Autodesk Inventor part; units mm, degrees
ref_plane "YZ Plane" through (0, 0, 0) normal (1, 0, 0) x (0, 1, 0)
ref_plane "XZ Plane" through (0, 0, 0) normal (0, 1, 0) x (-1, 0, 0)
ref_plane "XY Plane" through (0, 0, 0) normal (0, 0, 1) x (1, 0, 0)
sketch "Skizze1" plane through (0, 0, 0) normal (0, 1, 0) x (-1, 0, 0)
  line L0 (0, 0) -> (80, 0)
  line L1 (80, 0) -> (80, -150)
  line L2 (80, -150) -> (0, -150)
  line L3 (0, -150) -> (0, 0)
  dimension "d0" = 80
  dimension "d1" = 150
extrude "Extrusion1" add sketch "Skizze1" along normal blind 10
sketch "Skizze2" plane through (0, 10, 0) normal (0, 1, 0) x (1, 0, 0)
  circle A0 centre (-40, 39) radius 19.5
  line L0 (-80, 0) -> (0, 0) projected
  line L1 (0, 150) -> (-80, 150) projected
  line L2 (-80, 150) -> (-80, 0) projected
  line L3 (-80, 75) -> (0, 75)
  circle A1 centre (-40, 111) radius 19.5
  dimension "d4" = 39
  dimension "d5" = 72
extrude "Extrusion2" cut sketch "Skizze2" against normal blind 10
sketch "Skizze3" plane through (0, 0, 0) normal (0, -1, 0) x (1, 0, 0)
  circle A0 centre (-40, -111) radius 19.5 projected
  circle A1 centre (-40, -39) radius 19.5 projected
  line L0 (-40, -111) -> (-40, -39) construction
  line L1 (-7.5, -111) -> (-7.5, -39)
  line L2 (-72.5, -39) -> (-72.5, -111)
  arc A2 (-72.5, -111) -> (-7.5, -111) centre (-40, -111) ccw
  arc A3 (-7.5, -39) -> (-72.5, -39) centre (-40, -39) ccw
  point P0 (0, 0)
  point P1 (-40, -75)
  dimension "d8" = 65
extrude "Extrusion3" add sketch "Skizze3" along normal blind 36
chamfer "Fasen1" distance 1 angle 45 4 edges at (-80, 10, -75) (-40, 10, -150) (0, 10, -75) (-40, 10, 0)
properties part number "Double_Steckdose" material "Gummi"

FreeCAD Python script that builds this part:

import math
import FreeCAD as App
import Part
import Sketcher


def edges_at(feature, points):
    """Names of the edges that pass closest to the given points."""
    edges = feature.Shape.Edges
    near = lambda p: min(range(len(edges)), key=lambda i: edges[i].distToShape(Part.Vertex(*p))[0])
    return sorted({f"Edge{near(p) + 1}" for p in points})


def add_polygon(sketch, points):
    """Adds a closed chain of lines whose ends are joined by coincident constraints."""
    first, n = sketch.GeometryCount, len(points)
    for a, b in zip(points, points[1:] + points[:1]):
        sketch.addGeometry(Part.LineSegment(App.Vector(*a, 0), App.Vector(*b, 0)), False)
    for i in range(n):
        sketch.addConstraint(Sketcher.Constraint("Coincident", first + i, 2, first + (i + 1) % n, 1))

doc = App.newDocument("Part")
body = doc.addObject("PartDesign::Body", "Body")

# Sketch on XZ plane
sketch1 = body.newObject("Sketcher::SketchObject", "Sketch")
sketch1.AttachmentSupport = (doc.getObject("XZ_Plane"), [""])
sketch1.MapMode = "FlatFace"
add_polygon(sketch1, [(-80, 0), (0, 0), (0, -150), (-80, -150)])  # lines 0-3
sketch1.addConstraint([
    Sketcher.Constraint("Horizontal", 0),
    Sketcher.Constraint("Vertical", 1),
    Sketcher.Constraint("Horizontal", 2),
    Sketcher.Constraint("Vertical", 3),
    Sketcher.Constraint("Coincident", 0, 2, -1, 1),
    Sketcher.Constraint("DistanceX", 0, 1, 0, 2, 80.0),
    Sketcher.Constraint("DistanceY", 1, 2, 1, 1, 150.0),
])
pad1 = body.newObject("PartDesign::Pad", "Pad")
pad1.Profile = sketch1
pad1.Length = 10
pad1.Reversed = True

# Sketch on XZ plane
sketch2 = body.newObject("Sketcher::SketchObject", "Sketch001")
sketch2.AttachmentSupport = (doc.getObject("XZ_Plane"), [""])
sketch2.MapMode = "FlatFace"
sketch2.AttachmentOffset = App.Placement(App.Vector(0, 0, -10), App.Rotation())
sketch2.addGeometry([
    Part.Circle(App.Vector(-40, -39, 0), App.Vector(0, 0, 1), 19.5),
    Part.Circle(App.Vector(-40, -111, 0), App.Vector(0, 0, 1), 19.5),
], False)
sketch2.addConstraint([
    Sketcher.Constraint("Equal", 0, 1),
    Sketcher.Constraint("Vertical", 0, 3, 1, 3),
    Sketcher.Constraint("Diameter", 0, 39.0),
    Sketcher.Constraint("DistanceY", 0, 3, -1, 1, 39.0),
    Sketcher.Constraint("DistanceY", 1, 3, 0, 3, 72.0),
    Sketcher.Constraint("DistanceX", 0, 3, -1, 1, 40.0),
])
pocket1 = body.newObject("PartDesign::Pocket", "Pocket")
pocket1.Profile = sketch2
pocket1.Length = 10
pocket1.Reversed = True

# Sketch on XZ plane
sketch3 = body.newObject("Sketcher::SketchObject", "Sketch002")
sketch3.AttachmentSupport = (doc.getObject("XZ_Plane"), [""])
sketch3.MapMode = "FlatFace"
sketch3.addGeometry([
    Part.ArcOfCircle(Part.Circle(App.Vector(-40, -111, 0), App.Vector(0, 0, 1), 32.5), math.radians(180), math.radians(360)),  # 0
    Part.LineSegment(App.Vector(-7.5, -111, 0), App.Vector(-7.5, -39, 0)),  # 1
    Part.ArcOfCircle(Part.Circle(App.Vector(-40, -39, 0), App.Vector(0, 0, 1), 32.5), math.radians(0), math.radians(180)),  # 2
    Part.LineSegment(App.Vector(-72.5, -39, 0), App.Vector(-72.5, -111, 0)),  # 3
    Part.Circle(App.Vector(-40, -111, 0), App.Vector(0, 0, 1), 19.5),  # 4
    Part.Circle(App.Vector(-40, -39, 0), App.Vector(0, 0, 1), 19.5),  # 5
], False)
sketch3.addConstraint([
    Sketcher.Constraint("Tangent", 0, 2, 1, 1),
    Sketcher.Constraint("Tangent", 1, 2, 2, 1),
    Sketcher.Constraint("Tangent", 2, 2, 3, 1),
    Sketcher.Constraint("Tangent", 3, 2, 0, 1),
    Sketcher.Constraint("Vertical", 1),
    Sketcher.Constraint("Vertical", 3),
    Sketcher.Constraint("Coincident", 4, 3, 0, 3),
    Sketcher.Constraint("Coincident", 5, 3, 2, 3),
    Sketcher.Constraint("Equal", 4, 5),
    Sketcher.Constraint("Radius", 0, 32.5),
    Sketcher.Constraint("Diameter", 4, 39.0),
    Sketcher.Constraint("DistanceY", 1, 1, 1, 2, 72.0),
    Sketcher.Constraint("DistanceX", 0, 3, -1, 1, 40.0),
    Sketcher.Constraint("DistanceY", 0, 3, -1, 1, 111.0),
])
pad2 = body.newObject("PartDesign::Pad", "Pad001")
pad2.Profile = sketch3
pad2.Length = 36
doc.recompute()

chamfer = body.newObject("PartDesign::Chamfer", "Chamfer")
chamfer.Base = (pad2, edges_at(pad2, [
    (-80, 10, -75),
    (-40, 10, -150),
    (0, 10, -75),
    (-40, 10, 0),
]))
chamfer.Size = 1

doc.recompute()
